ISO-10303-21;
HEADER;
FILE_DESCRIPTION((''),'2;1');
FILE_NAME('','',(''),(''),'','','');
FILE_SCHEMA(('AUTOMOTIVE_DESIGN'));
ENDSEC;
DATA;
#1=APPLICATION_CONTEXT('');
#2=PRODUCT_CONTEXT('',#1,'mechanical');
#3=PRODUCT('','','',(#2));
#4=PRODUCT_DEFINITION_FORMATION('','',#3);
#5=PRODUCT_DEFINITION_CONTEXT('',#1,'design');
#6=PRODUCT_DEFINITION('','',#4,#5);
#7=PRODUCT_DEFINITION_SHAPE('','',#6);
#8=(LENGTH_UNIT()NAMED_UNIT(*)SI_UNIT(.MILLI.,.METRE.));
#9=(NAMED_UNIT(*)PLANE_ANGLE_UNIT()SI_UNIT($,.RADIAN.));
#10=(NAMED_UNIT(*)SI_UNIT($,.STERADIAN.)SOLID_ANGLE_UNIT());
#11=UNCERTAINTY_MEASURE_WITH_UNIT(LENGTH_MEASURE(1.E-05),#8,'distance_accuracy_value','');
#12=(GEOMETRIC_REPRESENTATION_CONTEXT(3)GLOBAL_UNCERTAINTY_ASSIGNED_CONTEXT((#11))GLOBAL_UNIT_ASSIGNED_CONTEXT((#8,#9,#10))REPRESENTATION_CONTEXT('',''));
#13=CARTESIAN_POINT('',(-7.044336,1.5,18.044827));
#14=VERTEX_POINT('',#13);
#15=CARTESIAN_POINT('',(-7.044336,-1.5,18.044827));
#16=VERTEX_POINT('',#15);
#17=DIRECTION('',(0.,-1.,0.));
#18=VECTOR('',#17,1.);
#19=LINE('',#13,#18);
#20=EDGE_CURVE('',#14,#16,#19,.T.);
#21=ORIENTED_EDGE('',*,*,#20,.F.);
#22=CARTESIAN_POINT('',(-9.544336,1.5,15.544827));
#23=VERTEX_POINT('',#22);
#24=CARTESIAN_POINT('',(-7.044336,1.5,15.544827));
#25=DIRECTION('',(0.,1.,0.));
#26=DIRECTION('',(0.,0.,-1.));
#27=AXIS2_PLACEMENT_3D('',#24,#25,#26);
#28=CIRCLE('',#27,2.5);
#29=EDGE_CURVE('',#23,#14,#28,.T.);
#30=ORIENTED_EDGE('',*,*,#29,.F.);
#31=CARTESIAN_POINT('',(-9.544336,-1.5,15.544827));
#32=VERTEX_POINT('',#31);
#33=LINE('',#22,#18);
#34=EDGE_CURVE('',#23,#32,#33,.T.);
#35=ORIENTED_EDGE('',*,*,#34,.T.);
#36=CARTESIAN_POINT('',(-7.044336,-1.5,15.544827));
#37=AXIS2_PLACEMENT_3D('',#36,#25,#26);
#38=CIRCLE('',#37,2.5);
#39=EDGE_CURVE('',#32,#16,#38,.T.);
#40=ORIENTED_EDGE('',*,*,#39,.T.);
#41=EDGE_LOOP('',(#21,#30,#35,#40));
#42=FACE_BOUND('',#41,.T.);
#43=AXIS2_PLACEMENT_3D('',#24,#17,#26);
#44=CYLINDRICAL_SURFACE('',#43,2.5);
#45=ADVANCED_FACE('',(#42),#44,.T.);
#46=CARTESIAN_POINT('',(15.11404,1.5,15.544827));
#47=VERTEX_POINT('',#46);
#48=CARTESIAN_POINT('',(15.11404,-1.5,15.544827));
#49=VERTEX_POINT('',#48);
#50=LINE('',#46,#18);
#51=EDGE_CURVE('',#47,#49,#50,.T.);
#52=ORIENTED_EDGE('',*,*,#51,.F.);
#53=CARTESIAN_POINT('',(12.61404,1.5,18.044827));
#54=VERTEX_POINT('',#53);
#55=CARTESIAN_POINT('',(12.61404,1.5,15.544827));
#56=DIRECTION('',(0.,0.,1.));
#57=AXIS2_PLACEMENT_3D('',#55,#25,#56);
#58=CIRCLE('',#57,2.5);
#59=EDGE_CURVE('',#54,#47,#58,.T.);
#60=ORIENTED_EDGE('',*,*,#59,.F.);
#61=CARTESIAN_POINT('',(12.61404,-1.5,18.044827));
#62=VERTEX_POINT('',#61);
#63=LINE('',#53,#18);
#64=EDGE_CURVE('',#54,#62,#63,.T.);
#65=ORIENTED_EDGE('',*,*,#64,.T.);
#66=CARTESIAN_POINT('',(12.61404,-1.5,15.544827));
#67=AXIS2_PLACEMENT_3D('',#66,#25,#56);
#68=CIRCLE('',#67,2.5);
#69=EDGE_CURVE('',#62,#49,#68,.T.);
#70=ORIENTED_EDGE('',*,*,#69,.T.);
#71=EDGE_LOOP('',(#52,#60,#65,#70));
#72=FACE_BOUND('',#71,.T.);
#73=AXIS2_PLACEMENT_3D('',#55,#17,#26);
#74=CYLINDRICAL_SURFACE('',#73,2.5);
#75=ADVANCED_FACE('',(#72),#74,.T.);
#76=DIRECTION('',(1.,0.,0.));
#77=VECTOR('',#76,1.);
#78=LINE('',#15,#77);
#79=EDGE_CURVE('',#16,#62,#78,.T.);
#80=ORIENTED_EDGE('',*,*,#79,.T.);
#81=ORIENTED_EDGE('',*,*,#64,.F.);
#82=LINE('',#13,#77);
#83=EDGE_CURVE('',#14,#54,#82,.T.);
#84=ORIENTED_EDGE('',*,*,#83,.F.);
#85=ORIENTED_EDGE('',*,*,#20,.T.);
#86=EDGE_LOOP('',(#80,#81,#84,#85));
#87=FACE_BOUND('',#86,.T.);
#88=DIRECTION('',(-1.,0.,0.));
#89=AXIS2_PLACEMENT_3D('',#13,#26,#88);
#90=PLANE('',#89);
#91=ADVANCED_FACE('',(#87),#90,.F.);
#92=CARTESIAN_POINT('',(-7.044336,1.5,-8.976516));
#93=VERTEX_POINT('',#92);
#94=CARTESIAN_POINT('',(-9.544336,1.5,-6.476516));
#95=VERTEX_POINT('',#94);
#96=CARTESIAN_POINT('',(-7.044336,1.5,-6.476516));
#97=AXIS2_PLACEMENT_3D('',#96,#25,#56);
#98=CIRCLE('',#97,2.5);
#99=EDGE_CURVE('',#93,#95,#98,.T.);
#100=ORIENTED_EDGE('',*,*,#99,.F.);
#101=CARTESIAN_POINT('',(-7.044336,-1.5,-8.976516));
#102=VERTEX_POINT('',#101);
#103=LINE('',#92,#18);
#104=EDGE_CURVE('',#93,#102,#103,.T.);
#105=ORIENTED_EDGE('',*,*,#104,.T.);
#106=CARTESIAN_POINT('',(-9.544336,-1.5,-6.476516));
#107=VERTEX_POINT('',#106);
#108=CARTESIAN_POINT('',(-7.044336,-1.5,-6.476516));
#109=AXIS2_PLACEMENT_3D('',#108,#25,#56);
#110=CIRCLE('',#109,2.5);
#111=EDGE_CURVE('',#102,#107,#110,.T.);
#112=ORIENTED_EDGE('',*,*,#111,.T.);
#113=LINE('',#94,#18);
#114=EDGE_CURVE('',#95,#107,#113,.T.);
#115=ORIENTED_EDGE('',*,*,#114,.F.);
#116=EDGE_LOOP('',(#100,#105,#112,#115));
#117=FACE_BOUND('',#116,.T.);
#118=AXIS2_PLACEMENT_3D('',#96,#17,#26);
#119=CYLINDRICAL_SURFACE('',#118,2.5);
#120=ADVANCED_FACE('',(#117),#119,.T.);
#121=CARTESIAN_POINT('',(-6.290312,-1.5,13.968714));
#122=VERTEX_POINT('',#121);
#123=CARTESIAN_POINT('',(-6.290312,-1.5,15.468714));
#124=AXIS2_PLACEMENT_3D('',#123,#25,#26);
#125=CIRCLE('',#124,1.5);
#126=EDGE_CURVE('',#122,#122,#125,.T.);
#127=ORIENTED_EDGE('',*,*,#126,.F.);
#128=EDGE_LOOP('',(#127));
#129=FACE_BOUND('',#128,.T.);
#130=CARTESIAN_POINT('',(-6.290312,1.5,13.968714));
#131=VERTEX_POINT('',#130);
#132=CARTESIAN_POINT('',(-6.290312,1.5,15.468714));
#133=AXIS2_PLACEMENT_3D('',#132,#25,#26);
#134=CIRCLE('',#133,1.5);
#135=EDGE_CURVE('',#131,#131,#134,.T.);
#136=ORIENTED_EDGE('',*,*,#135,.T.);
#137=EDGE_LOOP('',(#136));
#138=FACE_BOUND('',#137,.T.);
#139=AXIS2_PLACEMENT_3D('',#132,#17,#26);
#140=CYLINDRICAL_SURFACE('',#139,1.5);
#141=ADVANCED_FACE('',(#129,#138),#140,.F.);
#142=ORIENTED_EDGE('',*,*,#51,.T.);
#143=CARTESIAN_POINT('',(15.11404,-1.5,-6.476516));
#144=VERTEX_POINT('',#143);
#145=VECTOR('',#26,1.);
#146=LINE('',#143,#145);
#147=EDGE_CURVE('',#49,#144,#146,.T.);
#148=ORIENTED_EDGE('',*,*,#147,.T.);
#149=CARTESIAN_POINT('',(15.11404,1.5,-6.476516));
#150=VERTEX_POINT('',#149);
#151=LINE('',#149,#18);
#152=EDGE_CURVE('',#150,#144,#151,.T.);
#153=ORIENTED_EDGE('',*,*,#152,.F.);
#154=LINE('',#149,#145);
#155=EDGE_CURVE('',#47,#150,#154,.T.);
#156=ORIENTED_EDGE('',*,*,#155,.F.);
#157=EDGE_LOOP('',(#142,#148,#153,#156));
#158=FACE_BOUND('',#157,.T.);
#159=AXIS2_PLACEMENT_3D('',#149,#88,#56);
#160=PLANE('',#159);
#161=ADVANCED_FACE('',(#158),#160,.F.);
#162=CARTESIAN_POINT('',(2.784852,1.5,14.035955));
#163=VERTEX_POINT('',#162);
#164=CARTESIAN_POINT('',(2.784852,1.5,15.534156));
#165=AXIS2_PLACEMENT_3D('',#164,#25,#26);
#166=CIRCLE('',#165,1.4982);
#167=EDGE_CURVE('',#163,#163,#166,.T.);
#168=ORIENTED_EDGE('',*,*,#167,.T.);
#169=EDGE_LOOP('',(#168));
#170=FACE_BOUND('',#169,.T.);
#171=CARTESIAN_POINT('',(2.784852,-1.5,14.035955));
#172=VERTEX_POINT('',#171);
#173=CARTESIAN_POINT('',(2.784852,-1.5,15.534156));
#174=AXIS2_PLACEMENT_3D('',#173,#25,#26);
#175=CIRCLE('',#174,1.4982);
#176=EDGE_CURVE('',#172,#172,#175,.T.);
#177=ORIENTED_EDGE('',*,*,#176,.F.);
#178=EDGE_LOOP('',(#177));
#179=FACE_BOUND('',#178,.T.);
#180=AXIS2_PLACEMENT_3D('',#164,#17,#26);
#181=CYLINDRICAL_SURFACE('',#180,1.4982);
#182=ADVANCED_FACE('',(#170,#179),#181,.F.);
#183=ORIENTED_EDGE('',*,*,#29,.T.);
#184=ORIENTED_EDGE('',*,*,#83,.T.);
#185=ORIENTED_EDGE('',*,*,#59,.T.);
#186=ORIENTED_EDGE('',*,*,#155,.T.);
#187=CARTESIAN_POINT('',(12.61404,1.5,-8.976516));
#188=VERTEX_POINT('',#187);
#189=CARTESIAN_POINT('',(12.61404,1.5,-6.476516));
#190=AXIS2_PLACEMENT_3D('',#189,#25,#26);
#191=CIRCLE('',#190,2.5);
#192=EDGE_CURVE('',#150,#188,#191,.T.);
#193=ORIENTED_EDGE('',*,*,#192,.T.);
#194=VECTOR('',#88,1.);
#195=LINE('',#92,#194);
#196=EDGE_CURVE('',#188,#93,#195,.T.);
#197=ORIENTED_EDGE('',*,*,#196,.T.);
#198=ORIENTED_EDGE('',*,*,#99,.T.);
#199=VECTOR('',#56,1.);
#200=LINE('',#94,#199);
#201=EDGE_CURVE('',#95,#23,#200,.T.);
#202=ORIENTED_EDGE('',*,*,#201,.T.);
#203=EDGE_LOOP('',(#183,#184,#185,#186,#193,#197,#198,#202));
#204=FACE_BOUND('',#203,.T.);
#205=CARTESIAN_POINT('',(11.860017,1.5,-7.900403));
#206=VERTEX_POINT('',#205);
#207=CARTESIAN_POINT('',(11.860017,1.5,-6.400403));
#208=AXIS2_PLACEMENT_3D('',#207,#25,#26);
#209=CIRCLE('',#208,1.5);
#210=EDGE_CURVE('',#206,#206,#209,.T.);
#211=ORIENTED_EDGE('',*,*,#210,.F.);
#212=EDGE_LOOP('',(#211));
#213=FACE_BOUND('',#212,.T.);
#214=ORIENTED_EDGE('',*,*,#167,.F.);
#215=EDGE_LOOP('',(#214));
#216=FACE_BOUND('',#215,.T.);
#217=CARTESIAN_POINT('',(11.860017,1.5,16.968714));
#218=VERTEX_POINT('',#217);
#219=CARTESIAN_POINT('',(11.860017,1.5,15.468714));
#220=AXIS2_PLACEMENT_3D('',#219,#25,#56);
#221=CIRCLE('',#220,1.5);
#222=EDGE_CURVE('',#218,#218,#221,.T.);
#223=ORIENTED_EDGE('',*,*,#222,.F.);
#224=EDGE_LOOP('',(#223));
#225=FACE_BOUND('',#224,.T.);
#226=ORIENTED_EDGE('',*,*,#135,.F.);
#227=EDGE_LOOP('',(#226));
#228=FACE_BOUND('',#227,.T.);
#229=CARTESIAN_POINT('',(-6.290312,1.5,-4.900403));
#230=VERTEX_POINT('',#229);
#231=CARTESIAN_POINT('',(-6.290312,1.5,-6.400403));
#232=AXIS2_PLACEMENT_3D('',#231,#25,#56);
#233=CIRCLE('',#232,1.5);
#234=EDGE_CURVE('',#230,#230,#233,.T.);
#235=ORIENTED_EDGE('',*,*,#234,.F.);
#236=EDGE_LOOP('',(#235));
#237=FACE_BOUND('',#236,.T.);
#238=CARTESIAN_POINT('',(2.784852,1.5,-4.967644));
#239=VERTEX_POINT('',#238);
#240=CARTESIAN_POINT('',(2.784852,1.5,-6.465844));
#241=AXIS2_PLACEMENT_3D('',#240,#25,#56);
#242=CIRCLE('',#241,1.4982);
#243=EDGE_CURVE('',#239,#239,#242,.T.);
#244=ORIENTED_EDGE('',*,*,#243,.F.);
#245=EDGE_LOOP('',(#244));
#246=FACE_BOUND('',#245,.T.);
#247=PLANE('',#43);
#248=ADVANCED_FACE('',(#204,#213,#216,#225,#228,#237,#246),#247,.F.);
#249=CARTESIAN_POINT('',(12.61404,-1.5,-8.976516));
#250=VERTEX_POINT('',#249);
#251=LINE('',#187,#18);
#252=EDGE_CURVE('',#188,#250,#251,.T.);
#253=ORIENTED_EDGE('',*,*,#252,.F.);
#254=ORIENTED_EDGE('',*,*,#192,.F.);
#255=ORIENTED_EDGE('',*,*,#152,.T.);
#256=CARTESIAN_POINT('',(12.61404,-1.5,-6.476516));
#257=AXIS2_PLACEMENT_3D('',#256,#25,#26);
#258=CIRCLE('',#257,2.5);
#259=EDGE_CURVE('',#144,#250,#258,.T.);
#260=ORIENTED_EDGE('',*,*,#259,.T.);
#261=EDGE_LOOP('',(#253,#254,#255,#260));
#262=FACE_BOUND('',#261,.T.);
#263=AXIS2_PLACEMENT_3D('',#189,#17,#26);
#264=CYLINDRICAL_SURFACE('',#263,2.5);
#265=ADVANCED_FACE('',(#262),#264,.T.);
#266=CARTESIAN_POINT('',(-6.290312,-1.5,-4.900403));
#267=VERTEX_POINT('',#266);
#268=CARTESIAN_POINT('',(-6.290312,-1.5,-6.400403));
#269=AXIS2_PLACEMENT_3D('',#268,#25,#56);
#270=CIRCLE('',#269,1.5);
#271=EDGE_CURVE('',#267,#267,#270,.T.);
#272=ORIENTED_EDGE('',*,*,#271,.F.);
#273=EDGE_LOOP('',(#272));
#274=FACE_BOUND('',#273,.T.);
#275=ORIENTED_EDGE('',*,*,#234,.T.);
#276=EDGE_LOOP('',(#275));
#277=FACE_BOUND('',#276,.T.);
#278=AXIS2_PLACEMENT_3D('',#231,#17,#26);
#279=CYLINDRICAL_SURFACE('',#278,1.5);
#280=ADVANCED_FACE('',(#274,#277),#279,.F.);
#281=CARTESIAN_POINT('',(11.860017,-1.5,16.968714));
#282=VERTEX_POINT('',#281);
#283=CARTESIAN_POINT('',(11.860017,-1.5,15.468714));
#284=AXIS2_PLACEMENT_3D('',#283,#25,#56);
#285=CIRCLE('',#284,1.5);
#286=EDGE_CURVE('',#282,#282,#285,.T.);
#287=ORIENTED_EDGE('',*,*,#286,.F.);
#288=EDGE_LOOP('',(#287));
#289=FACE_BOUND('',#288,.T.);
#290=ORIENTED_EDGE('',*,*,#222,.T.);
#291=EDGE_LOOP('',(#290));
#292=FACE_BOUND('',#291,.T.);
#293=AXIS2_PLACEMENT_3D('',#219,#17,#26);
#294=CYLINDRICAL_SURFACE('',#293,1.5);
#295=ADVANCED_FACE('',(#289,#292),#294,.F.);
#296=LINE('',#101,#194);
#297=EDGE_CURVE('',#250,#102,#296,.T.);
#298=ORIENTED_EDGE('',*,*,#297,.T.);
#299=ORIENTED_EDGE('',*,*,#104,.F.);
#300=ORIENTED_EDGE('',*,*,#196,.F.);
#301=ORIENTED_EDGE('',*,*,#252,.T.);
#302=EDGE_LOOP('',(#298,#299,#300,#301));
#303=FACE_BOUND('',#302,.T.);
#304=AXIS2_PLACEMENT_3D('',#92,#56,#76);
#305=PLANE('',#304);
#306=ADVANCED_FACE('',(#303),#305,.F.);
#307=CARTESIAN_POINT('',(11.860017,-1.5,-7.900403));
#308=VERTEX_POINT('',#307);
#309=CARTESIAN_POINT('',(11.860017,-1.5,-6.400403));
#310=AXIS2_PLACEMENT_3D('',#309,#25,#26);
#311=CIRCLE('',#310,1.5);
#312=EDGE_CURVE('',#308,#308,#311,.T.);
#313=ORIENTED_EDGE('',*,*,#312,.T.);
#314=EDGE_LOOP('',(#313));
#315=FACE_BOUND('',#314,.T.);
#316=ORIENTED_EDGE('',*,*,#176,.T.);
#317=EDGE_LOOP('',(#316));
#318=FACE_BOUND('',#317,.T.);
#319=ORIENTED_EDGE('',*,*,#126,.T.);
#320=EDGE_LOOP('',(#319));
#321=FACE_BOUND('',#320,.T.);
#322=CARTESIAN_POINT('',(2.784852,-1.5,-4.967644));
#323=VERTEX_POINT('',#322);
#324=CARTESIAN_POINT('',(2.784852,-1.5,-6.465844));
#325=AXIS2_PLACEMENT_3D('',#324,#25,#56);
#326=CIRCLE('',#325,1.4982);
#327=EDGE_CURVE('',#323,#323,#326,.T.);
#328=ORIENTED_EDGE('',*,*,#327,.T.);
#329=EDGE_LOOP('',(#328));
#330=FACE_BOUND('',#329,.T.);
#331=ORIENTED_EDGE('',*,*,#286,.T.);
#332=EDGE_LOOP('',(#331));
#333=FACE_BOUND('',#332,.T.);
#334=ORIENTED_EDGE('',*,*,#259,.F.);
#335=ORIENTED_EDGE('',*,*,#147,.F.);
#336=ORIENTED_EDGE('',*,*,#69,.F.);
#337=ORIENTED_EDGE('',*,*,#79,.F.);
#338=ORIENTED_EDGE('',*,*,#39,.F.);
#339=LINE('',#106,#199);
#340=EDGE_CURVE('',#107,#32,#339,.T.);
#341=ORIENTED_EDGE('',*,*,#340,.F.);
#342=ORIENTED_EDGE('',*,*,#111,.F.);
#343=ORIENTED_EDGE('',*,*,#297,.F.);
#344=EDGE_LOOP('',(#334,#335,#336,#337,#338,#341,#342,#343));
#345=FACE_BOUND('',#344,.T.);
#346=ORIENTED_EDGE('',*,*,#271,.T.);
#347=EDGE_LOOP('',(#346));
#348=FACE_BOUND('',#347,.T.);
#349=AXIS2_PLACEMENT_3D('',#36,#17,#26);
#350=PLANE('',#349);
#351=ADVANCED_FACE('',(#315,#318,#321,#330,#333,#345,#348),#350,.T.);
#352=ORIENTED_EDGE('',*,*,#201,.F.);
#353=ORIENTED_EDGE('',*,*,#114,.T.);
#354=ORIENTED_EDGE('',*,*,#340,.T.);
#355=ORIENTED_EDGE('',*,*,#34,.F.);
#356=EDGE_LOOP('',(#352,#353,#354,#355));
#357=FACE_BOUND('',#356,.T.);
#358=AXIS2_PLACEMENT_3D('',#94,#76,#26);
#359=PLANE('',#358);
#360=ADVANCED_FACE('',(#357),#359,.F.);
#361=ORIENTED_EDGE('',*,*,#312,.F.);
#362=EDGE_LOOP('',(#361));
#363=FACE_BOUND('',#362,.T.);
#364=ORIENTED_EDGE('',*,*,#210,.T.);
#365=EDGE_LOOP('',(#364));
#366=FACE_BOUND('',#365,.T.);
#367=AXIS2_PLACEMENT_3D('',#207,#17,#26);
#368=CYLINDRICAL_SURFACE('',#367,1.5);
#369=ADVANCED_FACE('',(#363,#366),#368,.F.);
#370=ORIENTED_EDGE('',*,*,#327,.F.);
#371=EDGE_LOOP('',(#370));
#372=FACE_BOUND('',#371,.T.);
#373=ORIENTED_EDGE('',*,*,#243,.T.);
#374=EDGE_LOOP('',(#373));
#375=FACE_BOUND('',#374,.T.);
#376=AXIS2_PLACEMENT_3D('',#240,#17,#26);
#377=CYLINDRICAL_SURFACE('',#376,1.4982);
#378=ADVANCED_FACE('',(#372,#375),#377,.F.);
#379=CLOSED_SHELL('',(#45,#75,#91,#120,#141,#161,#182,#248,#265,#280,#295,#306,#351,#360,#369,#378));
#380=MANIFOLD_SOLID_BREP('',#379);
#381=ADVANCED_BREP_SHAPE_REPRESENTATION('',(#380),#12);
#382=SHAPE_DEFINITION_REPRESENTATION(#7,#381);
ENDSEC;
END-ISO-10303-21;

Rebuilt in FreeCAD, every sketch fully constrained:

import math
import FreeCAD as App
import Part
import Sketcher

doc = App.newDocument("Part")
params = doc.addObject("Spreadsheet::Sheet", "Params")
for row, (alias, value) in enumerate([
    ("sketch1_diameter", "3 mm"),
    ("sketch1_radius", "2.5 mm"),
    ("pad1_length", "3 mm"),
], start=1):
    params.set(f"A{row}", alias)
    params.set(f"B{row}", "=" + value)
    params.setAlias(f"B{row}", alias)

body = doc.addObject("PartDesign::Body", "Body")

sketch1 = body.newObject("Sketcher::SketchObject", "Sketch")
sketch1.AttachmentSupport = (doc.getObject("XZ_Plane"), [""])
sketch1.MapMode = "FlatFace"
sketch1.addGeometry([
    Part.LineSegment(App.Vector(12.6, -9, 0), App.Vector(-7, -9, 0)),
    Part.ArcOfCircle(Part.Circle(App.Vector(-7, -6.5, 0), App.Vector(0, 0, 1), 2.5), math.radians(180), math.radians(270)),
    Part.LineSegment(App.Vector(-9.5, -6.5, 0), App.Vector(-9.5, 15.5, 0)),
    Part.ArcOfCircle(Part.Circle(App.Vector(-7, 15.5, 0), App.Vector(0, 0, 1), 2.5), math.radians(90), math.radians(180)),
    Part.LineSegment(App.Vector(-7, 18, 0), App.Vector(12.6, 18, 0)),
    Part.ArcOfCircle(Part.Circle(App.Vector(12.6, 15.5, 0), App.Vector(0, 0, 1), 2.5), math.radians(0), math.radians(90)),
    Part.LineSegment(App.Vector(15.1, 15.5, 0), App.Vector(15.1, -6.5, 0)),
    Part.ArcOfCircle(Part.Circle(App.Vector(12.6, -6.5, 0), App.Vector(0, 0, 1), 2.5), math.radians(-90), math.radians(0)),
    Part.Circle(App.Vector(11.9, 15.5, 0), App.Vector(0, 0, 1), 1.5),
    Part.Circle(App.Vector(2.8, 15.5, 0), App.Vector(0, 0, 1), 1.5),
    Part.Circle(App.Vector(-6.3, 15.5, 0), App.Vector(0, 0, 1), 1.5),
    Part.Circle(App.Vector(11.9, -6.4, 0), App.Vector(0, 0, 1), 1.5),
    Part.Circle(App.Vector(2.8, -6.5, 0), App.Vector(0, 0, 1), 1.5),
    Part.Circle(App.Vector(-6.3, -6.4, 0), App.Vector(0, 0, 1), 1.5),
], False)
sketch1.addConstraint([
    Sketcher.Constraint("Tangent", 0, 2, 1, 2),
    Sketcher.Constraint("Tangent", 1, 1, 2, 1),
    Sketcher.Constraint("Tangent", 2, 2, 3, 2),
    Sketcher.Constraint("Tangent", 3, 1, 4, 1),
    Sketcher.Constraint("Tangent", 4, 2, 5, 2),
    Sketcher.Constraint("Tangent", 5, 1, 6, 1),
    Sketcher.Constraint("Tangent", 6, 2, 7, 2),
    Sketcher.Constraint("Tangent", 7, 1, 0, 1),
    Sketcher.Constraint("Horizontal", 0),
    Sketcher.Constraint("Vertical", 2),
    Sketcher.Constraint("Horizontal", 4),
    Sketcher.Constraint("Vertical", 6),
    Sketcher.Constraint("Equal", 1, 3),
    Sketcher.Constraint("Equal", 3, 5),
    Sketcher.Constraint("Equal", 5, 7),
    Sketcher.Constraint("Equal", 8, 10),
    Sketcher.Constraint("Equal", 10, 11),
    Sketcher.Constraint("Equal", 9, 12),
    Sketcher.Constraint("Equal", 11, 13),
    Sketcher.Constraint("Horizontal", 8, 3, 10, 3),
    Sketcher.Constraint("Horizontal", 11, 3, 13, 3),
    Sketcher.Constraint("Vertical", 8, 3, 11, 3),
    Sketcher.Constraint("Vertical", 9, 3, 12, 3),
    Sketcher.Constraint("Vertical", 10, 3, 13, 3),
    Sketcher.Constraint("Diameter", 8, 3.0),
    Sketcher.Constraint("Radius", 1, 2.5),
    Sketcher.Constraint("DistanceY", 12, 3, 9, 3, 22.0),
    Sketcher.Constraint("Diameter", 9, 2.996401),
    Sketcher.Constraint("DistanceX", 0, 2, 0, 1, 19.658376),
    Sketcher.Constraint("DistanceY", 2, 1, 2, 2, 22.021343),
    Sketcher.Constraint("DistanceX", -1, 1, 5, 3, 12.61404),
    Sketcher.Constraint("DistanceY", 7, 3, 8, 3, 21.94523),
    Sketcher.Constraint("DistanceY", 8, 3, 9, 3, 0.065442),
    Sketcher.Constraint("DistanceX", 10, 3, 8, 3, 18.150329),
    Sketcher.Constraint("DistanceY", 11, 3, 5, 3, 21.94523),
    Sketcher.Constraint("DistanceY", 1, 3, -1, 1, 6.476516),
    Sketcher.Constraint("DistanceX", -1, 1, 8, 3, 11.860017),
    Sketcher.Constraint("DistanceX", -1, 1, 9, 3, 2.784852),
])
sketch1.setExpression("Constraints[24]", "Params.sketch1_diameter")
sketch1.setExpression("Constraints[25]", "Params.sketch1_radius")
pad1 = body.newObject("PartDesign::Pad", "Pad")
pad1.Profile = sketch1
pad1.setExpression("Length", "Params.pad1_length")
pad1.Midplane = True

doc.recompute()
